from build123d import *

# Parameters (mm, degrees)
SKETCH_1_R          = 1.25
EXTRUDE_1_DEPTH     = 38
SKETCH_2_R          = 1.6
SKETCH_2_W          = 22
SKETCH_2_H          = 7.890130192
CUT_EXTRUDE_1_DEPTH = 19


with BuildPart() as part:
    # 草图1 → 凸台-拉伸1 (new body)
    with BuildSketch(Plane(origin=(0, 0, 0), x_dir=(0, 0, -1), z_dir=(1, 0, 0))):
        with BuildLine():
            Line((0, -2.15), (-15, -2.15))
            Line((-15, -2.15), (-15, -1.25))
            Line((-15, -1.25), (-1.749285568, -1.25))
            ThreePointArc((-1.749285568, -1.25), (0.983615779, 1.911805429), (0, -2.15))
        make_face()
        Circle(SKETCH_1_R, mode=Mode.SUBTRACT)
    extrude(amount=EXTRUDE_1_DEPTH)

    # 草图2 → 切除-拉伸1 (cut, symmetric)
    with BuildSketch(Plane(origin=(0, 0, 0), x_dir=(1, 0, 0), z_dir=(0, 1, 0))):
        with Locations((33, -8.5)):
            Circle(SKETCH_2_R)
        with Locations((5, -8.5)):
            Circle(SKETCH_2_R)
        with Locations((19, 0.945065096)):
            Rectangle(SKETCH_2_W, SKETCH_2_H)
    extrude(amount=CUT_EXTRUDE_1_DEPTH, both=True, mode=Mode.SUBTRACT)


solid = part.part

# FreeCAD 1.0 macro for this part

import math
import FreeCAD as App
import Part
import Sketcher

V = App.Vector
Q = App.Units.Quantity


def add_polygon(sketch, points):
    """Adds a closed chain of lines whose ends are joined by coincident constraints."""
    first, n = sketch.GeometryCount, len(points)
    for a, b in zip(points, points[1:] + points[:1]):
        sketch.addGeometry(Part.LineSegment(App.Vector(*a, 0), App.Vector(*b, 0)), False)
    for i in range(n):
        sketch.addConstraint(Sketcher.Constraint("Coincident", first + i, 2, first + (i + 1) % n, 1))

doc = App.newDocument("Part")
body = doc.addObject("PartDesign::Body", "Body")

# Sketch on YZ plane
sketch1 = body.newObject("Sketcher::SketchObject", "Sketch")
sketch1.AttachmentSupport = (doc.getObject("YZ_Plane"), [""])
sketch1.MapMode = "FlatFace"
sketch1.addGeometry([
    Part.LineSegment(V(-2.15, 15, 0), V(-2.15, 0, 0)),  # 0
    Part.ArcOfCircle(Part.Circle(V(0, 0, 0), V(0, 0, 1), 2.15), math.radians(180), math.radians(485.548744)),  # 1
    Part.LineSegment(V(-1.25, 1.749286, 0), V(-1.25, 15, 0)),  # 2
    Part.LineSegment(V(-1.25, 15, 0), V(-2.15, 15, 0)),  # 3
    Part.Circle(V(0, 0, 0), V(0, 0, 1), 1.25),  # 4
], False)
sketch1.addConstraint([
    Sketcher.Constraint("Tangent", 0, 2, 1, 1),
    Sketcher.Constraint("Coincident", 1, 2, 2, 1),
    Sketcher.Constraint("Coincident", 2, 2, 3, 1),
    Sketcher.Constraint("Coincident", 3, 2, 0, 1),
    Sketcher.Constraint("Vertical", 0),
    Sketcher.Constraint("Vertical", 2),
    Sketcher.Constraint("Horizontal", 3),
    Sketcher.Constraint("Coincident", 1, 3, -1, 1),
    Sketcher.Constraint("Coincident", 4, 3, -1, 1),
    Sketcher.Constraint("Diameter", 4, Q("2.5 mm")),
    Sketcher.Constraint("DistanceY", 0, 2, 0, 1, Q("15 mm")),
    Sketcher.Constraint("Radius", 1, Q("2.15 mm")),
    Sketcher.Constraint("DistanceX", 3, 2, 3, 1, Q("0.9 mm")),
])
pad1 = body.newObject("PartDesign::Pad", "Pad")
pad1.Profile = sketch1
pad1.Length = 38

# Sketch on XZ plane
sketch2 = body.newObject("Sketcher::SketchObject", "Sketch001")
sketch2.AttachmentSupport = (doc.getObject("XZ_Plane"), [""])
sketch2.MapMode = "FlatFace"
sketch2.addGeometry(Part.Circle(V(33, 8.5, 0), V(0, 0, 1), 1.6), False)  # 0
sketch2.addGeometry(Part.Circle(V(5, 8.5, 0), V(0, 0, 1), 1.6), False)  # 1
add_polygon(sketch2, [(8, -4.89013), (8, 3), (30, 3), (30, -4.89013)])  # lines 2-5
sketch2.addConstraint([
    Sketcher.Constraint("Vertical", 2),
    Sketcher.Constraint("Horizontal", 3),
    Sketcher.Constraint("Vertical", 4),
    Sketcher.Constraint("Horizontal", 5),
    Sketcher.Constraint("Equal", 0, 1),
    Sketcher.Constraint("Horizontal", 0, 3, 1, 3),
    Sketcher.Constraint("Diameter", 0, Q("3.2 mm")),
    Sketcher.Constraint("DistanceX", 3, 1, 3, 2, Q("22 mm")),
    Sketcher.Constraint("DistanceX", -1, 1, 0, 3, Q("33 mm")),
    Sketcher.Constraint("DistanceX", -1, 1, 1, 3, Q("5 mm")),
    Sketcher.Constraint("DistanceX", -1, 1, 2, 2, Q("8 mm")),
    Sketcher.Constraint("DistanceY", -1, 1, 2, 2, Q("3 mm")),
    Sketcher.Constraint("DistanceY", -1, 1, 0, 3, Q("8.5 mm")),
    Sketcher.Constraint("DistanceY", 2, 1, 2, 2, Q("7.89013 mm")),
])
pocket1 = body.newObject("PartDesign::Pocket", "Pocket")
pocket1.Profile = sketch2
pocket1.Length = 38
pocket1.Midplane = True

doc.recompute()
